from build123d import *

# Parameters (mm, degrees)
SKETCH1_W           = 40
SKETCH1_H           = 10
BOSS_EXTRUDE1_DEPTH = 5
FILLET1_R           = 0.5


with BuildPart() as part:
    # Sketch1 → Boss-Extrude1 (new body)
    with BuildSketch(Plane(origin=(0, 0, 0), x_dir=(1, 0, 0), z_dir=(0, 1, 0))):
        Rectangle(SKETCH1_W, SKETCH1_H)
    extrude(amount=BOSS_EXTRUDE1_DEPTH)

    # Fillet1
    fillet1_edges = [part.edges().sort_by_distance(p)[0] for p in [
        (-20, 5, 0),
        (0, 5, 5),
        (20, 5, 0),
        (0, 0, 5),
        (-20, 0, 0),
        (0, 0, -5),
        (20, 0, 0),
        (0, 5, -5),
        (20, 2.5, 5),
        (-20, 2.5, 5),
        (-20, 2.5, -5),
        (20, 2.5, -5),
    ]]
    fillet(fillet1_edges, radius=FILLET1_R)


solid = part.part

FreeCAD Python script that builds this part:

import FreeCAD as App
import Part
import Sketcher
from FreeCAD import Vector

doc = App.newDocument("Part")
body = doc.addObject("PartDesign::Body", "Body")

# Sketch on XZ plane
sketch1 = body.newObject("Sketcher::SketchObject", "Sketch")
sketch1.AttachmentSupport = (doc.getObject("XZ_Plane"), [""])
sketch1.MapMode = "FlatFace"
sketch1.addGeometry(Part.LineSegment(Vector(-20, -5, 0), Vector(-20, 5, 0)), False)
sketch1.addGeometry(Part.LineSegment(Vector(-20, 5, 0), Vector(20, 5, 0)), False)
sketch1.addGeometry(Part.LineSegment(Vector(20, 5, 0), Vector(20, -5, 0)), False)
sketch1.addGeometry(Part.LineSegment(Vector(20, -5, 0), Vector(-20, -5, 0)), False)
sketch1.addConstraint(Sketcher.Constraint("Coincident", 0, 2, 1, 1))
sketch1.addConstraint(Sketcher.Constraint("Coincident", 1, 2, 2, 1))
sketch1.addConstraint(Sketcher.Constraint("Coincident", 2, 2, 3, 1))
sketch1.addConstraint(Sketcher.Constraint("Coincident", 3, 2, 0, 1))
sketch1.addConstraint(Sketcher.Constraint("Vertical", 0))
sketch1.addConstraint(Sketcher.Constraint("Horizontal", 1))
sketch1.addConstraint(Sketcher.Constraint("Vertical", 2))
sketch1.addConstraint(Sketcher.Constraint("Horizontal", 3))
sketch1.addConstraint(Sketcher.Constraint("Symmetric", 0, 2, 2, 2, -1, 1))
sketch1.addConstraint(Sketcher.Constraint("DistanceX", 1, 1, 1, 2, 40.0))
sketch1.addConstraint(Sketcher.Constraint("DistanceY", 0, 1, 0, 2, 10.0))
pad1 = body.newObject("PartDesign::Pad", "Pad")
pad1.Profile = sketch1
pad1.Length = 5
pad1.Reversed = True
doc.recompute()

fillet = body.newObject("PartDesign::Fillet", "Fillet")
fillet.Base = (pad1, ["Edge1"])
fillet.UseAllEdges = True
fillet.Radius = 0.5

doc.recompute()
